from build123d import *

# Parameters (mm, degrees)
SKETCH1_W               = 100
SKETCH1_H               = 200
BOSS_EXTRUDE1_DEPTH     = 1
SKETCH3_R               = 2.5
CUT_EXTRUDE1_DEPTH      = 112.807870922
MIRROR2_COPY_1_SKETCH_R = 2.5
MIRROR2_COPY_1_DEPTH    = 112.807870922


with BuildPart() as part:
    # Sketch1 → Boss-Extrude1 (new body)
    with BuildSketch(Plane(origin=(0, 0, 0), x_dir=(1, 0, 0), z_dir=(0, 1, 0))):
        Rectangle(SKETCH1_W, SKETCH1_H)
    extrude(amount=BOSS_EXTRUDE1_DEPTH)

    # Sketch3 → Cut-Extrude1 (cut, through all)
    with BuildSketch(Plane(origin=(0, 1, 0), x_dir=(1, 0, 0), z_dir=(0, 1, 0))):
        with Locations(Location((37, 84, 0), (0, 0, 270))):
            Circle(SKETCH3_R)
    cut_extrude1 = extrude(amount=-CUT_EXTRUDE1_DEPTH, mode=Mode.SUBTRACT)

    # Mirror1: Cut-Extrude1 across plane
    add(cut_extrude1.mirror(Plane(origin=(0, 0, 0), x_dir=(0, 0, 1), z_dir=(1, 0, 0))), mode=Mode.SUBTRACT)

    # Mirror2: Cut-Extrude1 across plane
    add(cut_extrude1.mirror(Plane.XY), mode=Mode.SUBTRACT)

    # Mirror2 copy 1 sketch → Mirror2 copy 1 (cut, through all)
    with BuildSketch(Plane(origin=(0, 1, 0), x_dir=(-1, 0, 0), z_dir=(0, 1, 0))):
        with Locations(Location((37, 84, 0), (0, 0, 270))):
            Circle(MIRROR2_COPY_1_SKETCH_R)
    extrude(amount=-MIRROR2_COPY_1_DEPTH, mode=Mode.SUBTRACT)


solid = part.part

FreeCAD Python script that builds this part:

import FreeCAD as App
import Part
import Sketcher
from FreeCAD import Vector

doc = App.newDocument("Part")
body = doc.addObject("PartDesign::Body", "Body")

sketch1 = body.newObject("Sketcher::SketchObject", "Sketch")
sketch1.AttachmentSupport = (doc.getObject("XZ_Plane"), [""])
sketch1.MapMode = "FlatFace"
sketch1.addGeometry([
    Part.LineSegment(Vector(-50, -100, 0), Vector(-50, 100, 0)),
    Part.LineSegment(Vector(-50, 100, 0), Vector(50, 100, 0)),
    Part.LineSegment(Vector(50, 100, 0), Vector(50, -100, 0)),
    Part.LineSegment(Vector(50, -100, 0), Vector(-50, -100, 0)),
], False)
sketch1.addConstraint([
    Sketcher.Constraint("Coincident", 0, 2, 1, 1),
    Sketcher.Constraint("Coincident", 1, 2, 2, 1),
    Sketcher.Constraint("Coincident", 2, 2, 3, 1),
    Sketcher.Constraint("Coincident", 3, 2, 0, 1),
    Sketcher.Constraint("Vertical", 0),
    Sketcher.Constraint("Horizontal", 1),
    Sketcher.Constraint("Vertical", 2),
    Sketcher.Constraint("Horizontal", 3),
    Sketcher.Constraint("Symmetric", 0, 2, 2, 2, -1, 1),
    Sketcher.Constraint("DistanceX", 1, 1, 1, 2, 100.0),
    Sketcher.Constraint("DistanceY", 0, 1, 0, 2, 200.0),
])
pad1 = body.newObject("PartDesign::Pad", "Pad")
pad1.Profile = sketch1
pad1.Length = 1
pad1.Reversed = True

sketch2 = body.newObject("Sketcher::SketchObject", "Sketch001")
sketch2.AttachmentSupport = (doc.getObject("XZ_Plane"), [""])
sketch2.MapMode = "FlatFace"
sketch2.AttachmentOffset = App.Placement(Vector(0, 0, -1), App.Rotation())
sketch2.addGeometry(Part.Circle(Vector(37, -84, 0), Vector(0, 0, 1), 2.5), False)
sketch2.addConstraint([
    Sketcher.Constraint("Diameter", 0, 5.0),
    Sketcher.Constraint("DistanceX", -1, 1, 0, 3, 37.0),
    Sketcher.Constraint("DistanceY", 0, 3, -1, 1, 84.0),
])
pocket1 = body.newObject("PartDesign::Pocket", "Pocket")
pocket1.Profile = sketch2
pocket1.Type = "ThroughAll"
pocket1.Reversed = True
doc.recompute()

mirrored = body.newObject("PartDesign::Mirrored", "Mirrored")
mirrored.Originals = [pocket1]
mirrored.MirrorPlane = (doc.getObject("YZ_Plane"), [""])
body.Tip = mirrored
doc.recompute()

mirrored2 = body.newObject("PartDesign::Mirrored", "Mirrored001")
mirrored2.Originals = [pocket1]
mirrored2.MirrorPlane = (doc.getObject("XY_Plane"), [""])
body.Tip = mirrored2

sketch3 = body.newObject("Sketcher::SketchObject", "Sketch002")
sketch3.AttachmentSupport = (doc.getObject("XZ_Plane"), [""])
sketch3.MapMode = "FlatFace"
sketch3.AttachmentOffset = App.Placement(Vector(0, 0, -1), App.Rotation())
sketch3.addGeometry(Part.Circle(Vector(-37, 84, 0), Vector(0, 0, 1), 2.5), False)
sketch3.addConstraint([
    Sketcher.Constraint("Diameter", 0, 5.0),
    Sketcher.Constraint("DistanceX", 0, 3, -1, 1, 37.0),
    Sketcher.Constraint("DistanceY", -1, 1, 0, 3, 84.0),
])
pocket2 = body.newObject("PartDesign::Pocket", "Pocket001")
pocket2.Profile = sketch3
pocket2.Type = "ThroughAll"
pocket2.Reversed = True

doc.recompute()
